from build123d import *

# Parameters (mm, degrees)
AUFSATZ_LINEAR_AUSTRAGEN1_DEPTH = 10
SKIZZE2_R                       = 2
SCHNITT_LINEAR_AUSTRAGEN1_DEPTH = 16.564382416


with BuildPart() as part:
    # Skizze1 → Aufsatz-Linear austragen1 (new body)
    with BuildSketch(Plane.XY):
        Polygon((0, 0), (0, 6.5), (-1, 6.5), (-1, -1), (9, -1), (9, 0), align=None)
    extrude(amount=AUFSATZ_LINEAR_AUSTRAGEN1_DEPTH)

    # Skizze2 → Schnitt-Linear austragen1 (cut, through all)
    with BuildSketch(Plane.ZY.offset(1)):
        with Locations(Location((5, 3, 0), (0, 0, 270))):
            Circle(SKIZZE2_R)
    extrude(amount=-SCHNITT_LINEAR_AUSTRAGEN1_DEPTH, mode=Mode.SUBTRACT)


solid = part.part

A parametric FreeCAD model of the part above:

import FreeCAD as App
import Part
import Sketcher
Q = App.Units.Quantity

doc = App.newDocument("Part")
body = doc.addObject("PartDesign::Body", "Body")

# Sketch on XY plane
sketch1 = body.newObject("Sketcher::SketchObject", "Sketch")
sketch1.AttachmentSupport = (doc.getObject("XY_Plane"), [""])
sketch1.MapMode = "FlatFace"
sketch1.addGeometry(Part.LineSegment(App.Vector(0, 0, 0), App.Vector(0, 6.5, 0)), False)
sketch1.addGeometry(Part.LineSegment(App.Vector(0, 6.5, 0), App.Vector(-1, 6.5, 0)), False)
sketch1.addGeometry(Part.LineSegment(App.Vector(-1, 6.5, 0), App.Vector(-1, -1, 0)), False)
sketch1.addGeometry(Part.LineSegment(App.Vector(-1, -1, 0), App.Vector(9, -1, 0)), False)
sketch1.addGeometry(Part.LineSegment(App.Vector(9, -1, 0), App.Vector(9, 0, 0)), False)
sketch1.addGeometry(Part.LineSegment(App.Vector(9, 0, 0), App.Vector(0, 0, 0)), False)
sketch1.addConstraint(Sketcher.Constraint("Coincident", 0, 2, 1, 1))
sketch1.addConstraint(Sketcher.Constraint("Coincident", 1, 2, 2, 1))
sketch1.addConstraint(Sketcher.Constraint("Coincident", 2, 2, 3, 1))
sketch1.addConstraint(Sketcher.Constraint("Coincident", 3, 2, 4, 1))
sketch1.addConstraint(Sketcher.Constraint("Coincident", 4, 2, 5, 1))
sketch1.addConstraint(Sketcher.Constraint("Coincident", 5, 2, 0, 1))
sketch1.addConstraint(Sketcher.Constraint("Vertical", 0))
sketch1.addConstraint(Sketcher.Constraint("Horizontal", 1))
sketch1.addConstraint(Sketcher.Constraint("Vertical", 2))
sketch1.addConstraint(Sketcher.Constraint("Horizontal", 3))
sketch1.addConstraint(Sketcher.Constraint("Vertical", 4))
sketch1.addConstraint(Sketcher.Constraint("Horizontal", 5))
sketch1.addConstraint(Sketcher.Constraint("Coincident", 5, 2, -1, 1))
sketch1.addConstraint(Sketcher.Constraint("Equal", 1, 4))
sketch1.addConstraint(Sketcher.Constraint("DistanceX", 1, 2, 1, 1, Q("1 mm")))
sketch1.addConstraint(Sketcher.Constraint("DistanceX", 3, 1, 3, 2, Q("10 mm")))
sketch1.addConstraint(Sketcher.Constraint("DistanceY", 0, 1, 0, 2, Q("6.5 mm")))
pad1 = body.newObject("PartDesign::Pad", "Pad")
pad1.Profile = sketch1
pad1.Length = 10

# Sketch on YZ plane
sketch2 = body.newObject("Sketcher::SketchObject", "Sketch001")
sketch2.AttachmentSupport = (doc.getObject("YZ_Plane"), [""])
sketch2.MapMode = "FlatFace"
sketch2.AttachmentOffset = App.Placement(App.Vector(0, 0, -1), App.Rotation())
sketch2.addGeometry(Part.Circle(App.Vector(3, 5, 0), App.Vector(0, 0, 1), 2), False)
sketch2.addConstraint(Sketcher.Constraint("Diameter", 0, Q("4 mm")))
sketch2.addConstraint(Sketcher.Constraint("DistanceX", -1, 1, 0, 3, Q("3 mm")))
sketch2.addConstraint(Sketcher.Constraint("DistanceY", -1, 1, 0, 3, Q("5 mm")))
pocket1 = body.newObject("PartDesign::Pocket", "Pocket")
pocket1.Profile = sketch2
pocket1.Type = "ThroughAll"
pocket1.Reversed = True

doc.recompute()
